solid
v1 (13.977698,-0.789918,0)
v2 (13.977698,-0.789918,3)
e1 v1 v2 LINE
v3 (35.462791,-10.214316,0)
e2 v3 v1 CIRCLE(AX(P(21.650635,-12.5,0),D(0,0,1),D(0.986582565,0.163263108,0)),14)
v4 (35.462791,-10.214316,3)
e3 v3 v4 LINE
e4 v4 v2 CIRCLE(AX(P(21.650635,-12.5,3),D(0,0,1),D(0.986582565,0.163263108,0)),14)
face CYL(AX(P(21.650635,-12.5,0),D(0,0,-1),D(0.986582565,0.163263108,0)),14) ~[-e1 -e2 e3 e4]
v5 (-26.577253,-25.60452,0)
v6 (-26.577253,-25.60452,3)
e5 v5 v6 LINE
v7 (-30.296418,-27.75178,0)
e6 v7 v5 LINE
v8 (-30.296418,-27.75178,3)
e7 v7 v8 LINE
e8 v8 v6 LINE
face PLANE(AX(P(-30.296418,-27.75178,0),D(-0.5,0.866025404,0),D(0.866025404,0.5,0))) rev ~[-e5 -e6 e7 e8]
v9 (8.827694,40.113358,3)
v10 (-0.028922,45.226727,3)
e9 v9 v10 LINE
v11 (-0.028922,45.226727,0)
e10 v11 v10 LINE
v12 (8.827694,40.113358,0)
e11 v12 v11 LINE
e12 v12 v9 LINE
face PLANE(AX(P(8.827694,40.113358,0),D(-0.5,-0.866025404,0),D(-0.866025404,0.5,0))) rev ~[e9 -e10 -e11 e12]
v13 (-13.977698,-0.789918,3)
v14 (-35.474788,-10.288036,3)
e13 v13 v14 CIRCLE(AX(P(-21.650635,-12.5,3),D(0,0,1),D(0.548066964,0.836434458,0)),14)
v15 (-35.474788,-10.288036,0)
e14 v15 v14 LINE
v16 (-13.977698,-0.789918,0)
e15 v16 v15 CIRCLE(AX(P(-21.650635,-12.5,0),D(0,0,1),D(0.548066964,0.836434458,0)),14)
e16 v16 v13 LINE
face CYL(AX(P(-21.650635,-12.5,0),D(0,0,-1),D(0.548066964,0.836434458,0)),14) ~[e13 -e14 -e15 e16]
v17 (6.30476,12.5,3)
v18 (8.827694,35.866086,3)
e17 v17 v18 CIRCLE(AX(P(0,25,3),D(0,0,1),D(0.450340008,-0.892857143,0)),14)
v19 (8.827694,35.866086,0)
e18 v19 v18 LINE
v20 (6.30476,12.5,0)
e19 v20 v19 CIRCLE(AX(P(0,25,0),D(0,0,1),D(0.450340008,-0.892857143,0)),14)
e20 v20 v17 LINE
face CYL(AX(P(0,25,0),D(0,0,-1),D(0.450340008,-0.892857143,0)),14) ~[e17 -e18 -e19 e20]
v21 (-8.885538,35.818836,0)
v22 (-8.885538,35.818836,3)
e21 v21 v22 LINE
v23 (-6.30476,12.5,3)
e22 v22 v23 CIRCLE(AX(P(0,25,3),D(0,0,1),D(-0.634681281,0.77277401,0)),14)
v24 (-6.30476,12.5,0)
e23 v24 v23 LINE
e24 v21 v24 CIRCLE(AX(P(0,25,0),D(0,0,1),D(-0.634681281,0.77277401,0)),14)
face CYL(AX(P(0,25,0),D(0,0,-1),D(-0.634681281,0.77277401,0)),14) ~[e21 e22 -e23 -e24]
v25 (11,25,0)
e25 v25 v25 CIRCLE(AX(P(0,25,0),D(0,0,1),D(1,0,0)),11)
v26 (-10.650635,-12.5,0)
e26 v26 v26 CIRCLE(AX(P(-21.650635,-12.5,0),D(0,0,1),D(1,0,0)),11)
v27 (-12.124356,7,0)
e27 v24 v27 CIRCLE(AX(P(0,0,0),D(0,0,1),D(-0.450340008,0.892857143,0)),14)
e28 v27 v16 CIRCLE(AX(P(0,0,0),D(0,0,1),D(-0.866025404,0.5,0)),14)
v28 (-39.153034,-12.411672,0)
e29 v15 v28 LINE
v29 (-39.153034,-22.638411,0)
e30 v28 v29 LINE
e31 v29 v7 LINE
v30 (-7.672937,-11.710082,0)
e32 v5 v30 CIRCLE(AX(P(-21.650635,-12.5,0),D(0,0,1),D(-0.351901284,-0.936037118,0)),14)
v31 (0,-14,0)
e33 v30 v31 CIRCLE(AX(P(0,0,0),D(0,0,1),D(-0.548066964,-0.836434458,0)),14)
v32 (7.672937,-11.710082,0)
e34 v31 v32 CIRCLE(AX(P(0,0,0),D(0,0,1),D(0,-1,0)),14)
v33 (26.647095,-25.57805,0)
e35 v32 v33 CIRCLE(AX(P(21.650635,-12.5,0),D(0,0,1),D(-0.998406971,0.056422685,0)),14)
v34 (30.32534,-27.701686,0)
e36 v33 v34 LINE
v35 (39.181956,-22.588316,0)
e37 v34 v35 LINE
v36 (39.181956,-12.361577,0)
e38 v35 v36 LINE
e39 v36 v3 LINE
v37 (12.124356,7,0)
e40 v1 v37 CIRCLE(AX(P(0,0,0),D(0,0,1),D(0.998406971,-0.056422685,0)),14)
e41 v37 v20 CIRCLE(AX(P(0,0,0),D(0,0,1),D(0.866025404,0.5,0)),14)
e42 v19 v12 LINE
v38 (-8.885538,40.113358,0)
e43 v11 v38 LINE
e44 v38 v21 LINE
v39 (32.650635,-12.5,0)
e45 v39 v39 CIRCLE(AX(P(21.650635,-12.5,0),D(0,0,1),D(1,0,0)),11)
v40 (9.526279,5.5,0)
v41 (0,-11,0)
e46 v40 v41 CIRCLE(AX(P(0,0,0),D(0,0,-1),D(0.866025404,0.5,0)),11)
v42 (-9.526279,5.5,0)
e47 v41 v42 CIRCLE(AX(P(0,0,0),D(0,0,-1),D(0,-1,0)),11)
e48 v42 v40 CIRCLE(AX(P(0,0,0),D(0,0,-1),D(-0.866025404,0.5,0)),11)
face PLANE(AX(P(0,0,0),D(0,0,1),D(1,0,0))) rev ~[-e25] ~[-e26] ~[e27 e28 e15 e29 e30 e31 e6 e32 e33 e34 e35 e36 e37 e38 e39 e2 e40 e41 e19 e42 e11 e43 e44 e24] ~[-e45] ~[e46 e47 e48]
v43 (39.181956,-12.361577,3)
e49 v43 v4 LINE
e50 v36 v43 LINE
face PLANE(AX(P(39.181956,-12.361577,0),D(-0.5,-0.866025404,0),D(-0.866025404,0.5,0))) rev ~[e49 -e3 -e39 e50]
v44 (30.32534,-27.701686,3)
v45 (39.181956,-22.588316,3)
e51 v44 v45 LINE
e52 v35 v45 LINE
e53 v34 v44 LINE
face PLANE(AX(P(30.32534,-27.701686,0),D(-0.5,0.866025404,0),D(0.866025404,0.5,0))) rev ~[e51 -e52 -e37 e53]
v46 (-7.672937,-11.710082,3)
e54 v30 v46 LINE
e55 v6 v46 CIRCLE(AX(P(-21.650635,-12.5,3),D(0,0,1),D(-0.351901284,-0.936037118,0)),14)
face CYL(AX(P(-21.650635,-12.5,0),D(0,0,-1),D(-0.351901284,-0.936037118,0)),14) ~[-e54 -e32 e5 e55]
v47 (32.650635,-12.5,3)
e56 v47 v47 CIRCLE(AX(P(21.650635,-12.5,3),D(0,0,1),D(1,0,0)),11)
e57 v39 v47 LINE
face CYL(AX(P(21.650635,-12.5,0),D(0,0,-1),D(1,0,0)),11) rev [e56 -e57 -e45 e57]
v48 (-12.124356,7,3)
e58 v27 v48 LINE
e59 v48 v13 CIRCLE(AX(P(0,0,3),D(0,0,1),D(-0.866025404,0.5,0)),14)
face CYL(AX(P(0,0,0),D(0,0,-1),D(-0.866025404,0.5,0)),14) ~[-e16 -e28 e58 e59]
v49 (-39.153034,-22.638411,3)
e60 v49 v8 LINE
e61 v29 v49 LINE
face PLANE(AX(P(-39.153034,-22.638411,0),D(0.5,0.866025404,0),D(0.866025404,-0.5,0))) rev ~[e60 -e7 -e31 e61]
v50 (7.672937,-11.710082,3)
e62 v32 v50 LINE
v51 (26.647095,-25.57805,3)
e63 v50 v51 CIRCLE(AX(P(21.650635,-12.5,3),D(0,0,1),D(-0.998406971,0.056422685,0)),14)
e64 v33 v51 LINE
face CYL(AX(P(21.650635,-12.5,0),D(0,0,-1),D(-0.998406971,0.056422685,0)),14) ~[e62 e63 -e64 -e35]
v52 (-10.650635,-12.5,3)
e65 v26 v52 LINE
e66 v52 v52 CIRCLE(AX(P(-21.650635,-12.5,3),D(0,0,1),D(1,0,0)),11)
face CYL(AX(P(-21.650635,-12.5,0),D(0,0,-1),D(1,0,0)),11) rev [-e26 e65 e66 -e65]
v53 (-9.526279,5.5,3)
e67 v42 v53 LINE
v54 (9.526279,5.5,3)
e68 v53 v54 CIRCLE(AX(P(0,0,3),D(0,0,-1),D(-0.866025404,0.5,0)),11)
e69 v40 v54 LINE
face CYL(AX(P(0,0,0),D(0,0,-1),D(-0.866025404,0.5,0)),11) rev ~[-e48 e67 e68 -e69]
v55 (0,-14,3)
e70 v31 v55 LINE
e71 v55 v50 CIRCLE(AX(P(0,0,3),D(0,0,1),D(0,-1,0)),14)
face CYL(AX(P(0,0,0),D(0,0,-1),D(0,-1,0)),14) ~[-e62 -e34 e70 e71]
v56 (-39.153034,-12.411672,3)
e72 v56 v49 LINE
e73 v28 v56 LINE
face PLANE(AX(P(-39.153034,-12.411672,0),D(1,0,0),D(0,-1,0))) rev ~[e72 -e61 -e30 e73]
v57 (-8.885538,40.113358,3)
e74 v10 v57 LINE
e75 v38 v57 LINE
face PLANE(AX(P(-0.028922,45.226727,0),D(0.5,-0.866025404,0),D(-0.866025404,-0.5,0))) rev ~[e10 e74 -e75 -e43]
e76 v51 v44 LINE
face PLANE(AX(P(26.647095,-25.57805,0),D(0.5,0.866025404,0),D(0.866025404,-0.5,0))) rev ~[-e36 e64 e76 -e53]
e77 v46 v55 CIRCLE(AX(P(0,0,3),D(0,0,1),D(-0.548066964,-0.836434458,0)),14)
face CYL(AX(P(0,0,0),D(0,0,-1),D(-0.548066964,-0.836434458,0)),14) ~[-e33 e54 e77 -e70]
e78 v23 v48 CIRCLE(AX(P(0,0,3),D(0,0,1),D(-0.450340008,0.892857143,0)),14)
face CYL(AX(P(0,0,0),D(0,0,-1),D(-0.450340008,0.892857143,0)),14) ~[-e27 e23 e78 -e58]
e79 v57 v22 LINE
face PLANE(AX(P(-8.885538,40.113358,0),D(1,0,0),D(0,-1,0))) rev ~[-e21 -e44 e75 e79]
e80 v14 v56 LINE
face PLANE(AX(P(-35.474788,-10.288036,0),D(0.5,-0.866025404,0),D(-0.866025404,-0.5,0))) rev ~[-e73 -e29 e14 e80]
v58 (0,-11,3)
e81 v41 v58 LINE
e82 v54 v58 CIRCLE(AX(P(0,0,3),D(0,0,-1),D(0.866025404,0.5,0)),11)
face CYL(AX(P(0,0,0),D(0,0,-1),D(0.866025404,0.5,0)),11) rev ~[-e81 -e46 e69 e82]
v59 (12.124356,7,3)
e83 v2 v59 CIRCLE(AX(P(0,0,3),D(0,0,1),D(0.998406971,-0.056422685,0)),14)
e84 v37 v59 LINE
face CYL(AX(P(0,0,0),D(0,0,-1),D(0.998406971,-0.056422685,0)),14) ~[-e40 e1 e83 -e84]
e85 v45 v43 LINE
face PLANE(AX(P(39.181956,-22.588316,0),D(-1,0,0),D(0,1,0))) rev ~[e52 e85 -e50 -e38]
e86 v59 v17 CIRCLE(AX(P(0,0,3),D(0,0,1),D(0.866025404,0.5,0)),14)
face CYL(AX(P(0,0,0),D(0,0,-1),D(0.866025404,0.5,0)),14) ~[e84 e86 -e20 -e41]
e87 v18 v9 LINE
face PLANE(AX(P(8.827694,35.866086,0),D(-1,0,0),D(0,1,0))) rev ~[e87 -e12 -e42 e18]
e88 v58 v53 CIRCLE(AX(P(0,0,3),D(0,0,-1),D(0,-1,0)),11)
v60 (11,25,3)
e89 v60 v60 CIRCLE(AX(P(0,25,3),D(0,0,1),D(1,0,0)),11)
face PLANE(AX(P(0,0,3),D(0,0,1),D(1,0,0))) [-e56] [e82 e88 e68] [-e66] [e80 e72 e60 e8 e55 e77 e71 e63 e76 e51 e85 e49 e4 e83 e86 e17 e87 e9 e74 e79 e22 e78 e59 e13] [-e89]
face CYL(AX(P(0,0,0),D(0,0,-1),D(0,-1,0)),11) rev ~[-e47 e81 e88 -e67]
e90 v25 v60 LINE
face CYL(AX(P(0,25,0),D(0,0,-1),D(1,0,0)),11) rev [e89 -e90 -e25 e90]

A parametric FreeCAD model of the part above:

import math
import FreeCAD as App
import Part
import Sketcher

doc = App.newDocument("Part")
body = doc.addObject("PartDesign::Body", "Body")

sketch1 = body.newObject("Sketcher::SketchObject", "Sketch")
sketch1.AttachmentSupport = (doc.getObject("XY_Plane"), [""])
sketch1.MapMode = "FlatFace"
sketch1.addGeometry([
    Part.ArcOfCircle(Part.Circle(App.Vector(-21.650635, -12.5, 0), App.Vector(0, 0, 1), 14), math.radians(-110.60365), math.radians(3.234499)),
    Part.ArcOfCircle(Part.Circle(App.Vector(0, 0, 0), App.Vector(0, 0, 1), 14), math.radians(-123.234499), math.radians(-90)),
    Part.ArcOfCircle(Part.Circle(App.Vector(0, 0, 0), App.Vector(0, 0, 1), 14), math.radians(-90), math.radians(-56.765501)),
    Part.ArcOfCircle(Part.Circle(App.Vector(21.650635, -12.5, 0), App.Vector(0, 0, 1), 14), math.radians(176.765501), math.radians(290.909321)),
    Part.LineSegment(App.Vector(26.647095, -25.57805, 0), App.Vector(30.32534, -27.701686, 0)),
    Part.LineSegment(App.Vector(30.32534, -27.701686, 0), App.Vector(39.181956, -22.588316, 0)),
    Part.LineSegment(App.Vector(39.181956, -22.588316, 0), App.Vector(39.181956, -12.361577, 0)),
    Part.LineSegment(App.Vector(39.181956, -12.361577, 0), App.Vector(35.462791, -10.214316, 0)),
    Part.ArcOfCircle(Part.Circle(App.Vector(21.650635, -12.5, 0), App.Vector(0, 0, 1), 14), math.radians(9.39635), math.radians(123.234499)),
    Part.ArcOfCircle(Part.Circle(App.Vector(0, 0, 0), App.Vector(0, 0, 1), 14), math.radians(-3.234499), math.radians(30)),
    Part.ArcOfCircle(Part.Circle(App.Vector(0, 0, 0), App.Vector(0, 0, 1), 14), math.radians(30), math.radians(63.234499)),
    Part.ArcOfCircle(Part.Circle(App.Vector(0, 25, 0), App.Vector(0, 0, 1), 14), math.radians(-63.234499), math.radians(50.909321)),
    Part.LineSegment(App.Vector(8.827694, 35.866086, 0), App.Vector(8.827694, 40.113358, 0)),
    Part.LineSegment(App.Vector(8.827694, 40.113358, 0), App.Vector(-0.028922, 45.226727, 0)),
    Part.LineSegment(App.Vector(-0.028922, 45.226727, 0), App.Vector(-8.885538, 40.113358, 0)),
    Part.LineSegment(App.Vector(-8.885538, 40.113358, 0), App.Vector(-8.885538, 35.818836, 0)),
    Part.ArcOfCircle(Part.Circle(App.Vector(0, 25, 0), App.Vector(0, 0, 1), 14), math.radians(129.39635), math.radians(243.234499)),
    Part.ArcOfCircle(Part.Circle(App.Vector(0, 0, 0), App.Vector(0, 0, 1), 14), math.radians(116.765501), math.radians(150)),
    Part.ArcOfCircle(Part.Circle(App.Vector(0, 0, 0), App.Vector(0, 0, 1), 14), math.radians(150), math.radians(183.234499)),
    Part.ArcOfCircle(Part.Circle(App.Vector(-21.650635, -12.5, 0), App.Vector(0, 0, 1), 14), math.radians(56.765501), math.radians(170.909321)),
    Part.LineSegment(App.Vector(-35.474788, -10.288036, 0), App.Vector(-39.153034, -12.411672, 0)),
    Part.LineSegment(App.Vector(-39.153034, -12.411672, 0), App.Vector(-39.153034, -22.638411, 0)),
    Part.LineSegment(App.Vector(-39.153034, -22.638411, 0), App.Vector(-30.296418, -27.75178, 0)),
    Part.LineSegment(App.Vector(-30.296418, -27.75178, 0), App.Vector(-26.577253, -25.60452, 0)),
    Part.Circle(App.Vector(-21.650635, -12.5, 0), App.Vector(0, 0, 1), 11),
    Part.Circle(App.Vector(21.650635, -12.5, 0), App.Vector(0, 0, 1), 11),
    Part.ArcOfCircle(Part.Circle(App.Vector(0, 0, 0), App.Vector(0, 0, 1), 11), math.radians(-90), math.radians(30)),
    Part.ArcOfCircle(Part.Circle(App.Vector(0, 0, 0), App.Vector(0, 0, 1), 11), math.radians(150), math.radians(270)),
    Part.ArcOfCircle(Part.Circle(App.Vector(0, 0, 0), App.Vector(0, 0, 1), 11), math.radians(30), math.radians(150)),
    Part.Circle(App.Vector(0, 25, 0), App.Vector(0, 0, 1), 11),
], False)
sketch1.addConstraint([
    Sketcher.Constraint("Coincident", 0, 2, 1, 1),
    Sketcher.Constraint("Coincident", 1, 2, 2, 1),
    Sketcher.Constraint("Coincident", 2, 2, 3, 1),
    Sketcher.Constraint("Coincident", 3, 2, 4, 1),
    Sketcher.Constraint("Coincident", 4, 2, 5, 1),
    Sketcher.Constraint("Coincident", 5, 2, 6, 1),
    Sketcher.Constraint("Coincident", 6, 2, 7, 1),
    Sketcher.Constraint("Coincident", 7, 2, 8, 1),
    Sketcher.Constraint("Coincident", 8, 2, 9, 1),
    Sketcher.Constraint("Coincident", 9, 2, 10, 1),
    Sketcher.Constraint("Coincident", 10, 2, 11, 1),
    Sketcher.Constraint("Coincident", 11, 2, 12, 1),
    Sketcher.Constraint("Coincident", 12, 2, 13, 1),
    Sketcher.Constraint("Coincident", 13, 2, 14, 1),
    Sketcher.Constraint("Coincident", 14, 2, 15, 1),
    Sketcher.Constraint("Coincident", 15, 2, 16, 1),
    Sketcher.Constraint("Coincident", 16, 2, 17, 1),
    Sketcher.Constraint("Coincident", 17, 2, 18, 1),
    Sketcher.Constraint("Coincident", 18, 2, 19, 1),
    Sketcher.Constraint("Coincident", 19, 2, 20, 1),
    Sketcher.Constraint("Coincident", 20, 2, 21, 1),
    Sketcher.Constraint("Coincident", 21, 2, 22, 1),
    Sketcher.Constraint("Coincident", 22, 2, 23, 1),
    Sketcher.Constraint("Coincident", 23, 2, 0, 1),
    Sketcher.Constraint("Coincident", 26, 1, 27, 2),
    Sketcher.Constraint("Coincident", 27, 1, 28, 2),
    Sketcher.Constraint("Coincident", 28, 1, 26, 2),
    Sketcher.Constraint("Vertical", 6),
    Sketcher.Constraint("Vertical", 12),
    Sketcher.Constraint("Vertical", 15),
    Sketcher.Constraint("Vertical", 21),
    Sketcher.Constraint("Coincident", 1, 3, -1, 1),
    Sketcher.Constraint("Coincident", 2, 3, -1, 1),
    Sketcher.Constraint("Coincident", 9, 3, -1, 1),
    Sketcher.Constraint("Coincident", 10, 3, -1, 1),
    Sketcher.Constraint("Coincident", 17, 3, -1, 1),
    Sketcher.Constraint("Coincident", 18, 3, -1, 1),
    Sketcher.Constraint("Coincident", 26, 3, -1, 1),
    Sketcher.Constraint("Coincident", 27, 3, -1, 1),
    Sketcher.Constraint("Coincident", 8, 3, 3, 3),
    Sketcher.Constraint("Coincident", 16, 3, 11, 3),
    Sketcher.Constraint("Coincident", 19, 3, 0, 3),
    Sketcher.Constraint("Coincident", 24, 3, 0, 3),
    Sketcher.Constraint("Coincident", 25, 3, 3, 3),
    Sketcher.Constraint("Coincident", 29, 3, 11, 3),
    Sketcher.Constraint("PointOnObject", 11, 3, -2),
    Sketcher.Constraint("PointOnObject", 1, 2, -2),
    Sketcher.Constraint("PointOnObject", 26, 1, -2),
    Sketcher.Constraint("Diameter", 24, 22.0),
    Sketcher.Constraint("Diameter", 25, 22.0),
    Sketcher.Constraint("Diameter", 29, 22.0),
    Sketcher.Constraint("Radius", 0, 14.0),
    Sketcher.Constraint("Radius", 1, 14.0),
    Sketcher.Constraint("Radius", 3, 14.0),
    Sketcher.Constraint("Radius", 8, 14.0),
    Sketcher.Constraint("Radius", 9, 14.0),
    Sketcher.Constraint("Radius", 11, 14.0),
    Sketcher.Constraint("Radius", 16, 14.0),
    Sketcher.Constraint("Radius", 17, 14.0),
    Sketcher.Constraint("Radius", 19, 14.0),
    Sketcher.Constraint("Radius", 26, 11.0),
    Sketcher.Constraint("Radius", 28, 11.0),
    Sketcher.Constraint("DistanceY", -1, 1, 11, 3, 25.0),
    Sketcher.Constraint("DistanceY", -1, 1, 9, 2, 7.0),
    Sketcher.Constraint("DistanceY", -1, 1, 17, 2, 7.0),
    Sketcher.Constraint("DistanceY", 27, 1, 16, 2, 7.0),
    Sketcher.Constraint("DistanceY", 28, 1, 10, 2, 7.0),
    Sketcher.Constraint("DistanceY", 0, 3, -1, 1, 12.5),
    Sketcher.Constraint("DistanceY", 3, 3, -1, 1, 12.5),
    Sketcher.Constraint("DistanceY", 5, 2, 7, 2, 12.374),
    Sketcher.Constraint("DistanceY", 6, 1, 6, 2, 10.226739),
    Sketcher.Constraint("DistanceY", 12, 1, 12, 2, 4.247272),
    Sketcher.Constraint("DistanceY", 15, 2, 15, 1, 4.294521),
    Sketcher.Constraint("DistanceY", 21, 2, 21, 1, 10.226739),
    Sketcher.Constraint("DistanceX", 20, 2, 0, 3, 17.502398),
    Sketcher.Constraint("Distance", 4, 4.247272),
    Sketcher.Constraint("Distance", 5, 10.226739),
    Sketcher.Constraint("Distance", 7, 4.294521),
    Sketcher.Constraint("Distance", 13, 10.226739),
    Sketcher.Constraint("Distance", 14, 10.226739),
    Sketcher.Constraint("Distance", 20, 4.247272),
    Sketcher.Constraint("Distance", 22, 10.226739),
    Sketcher.Constraint("Distance", 23, 4.294521),
    Sketcher.Constraint("DistanceY", 3, 2, -1, 1, 25.57805),
    Sketcher.Constraint("DistanceX", -1, 1, 4, 2, 30.32534),
    Sketcher.Constraint("DistanceX", -1, 1, 7, 2, 35.462791),
    Sketcher.Constraint("DistanceX", 19, 2, -1, 1, 35.474788),
    Sketcher.Constraint("DistanceY", 20, 2, -1, 1, 12.411672),
    Sketcher.Constraint("DistanceY", 22, 2, -1, 1, 27.75178),
    Sketcher.Constraint("DistanceX", 11, 2, 9, 2, 3.296662),
    Sketcher.Constraint("DistanceY", 12, 2, 13, 2, 5.11337),
])
pad1 = body.newObject("PartDesign::Pad", "Pad")
pad1.Profile = sketch1
pad1.Length = 3

doc.recompute()
